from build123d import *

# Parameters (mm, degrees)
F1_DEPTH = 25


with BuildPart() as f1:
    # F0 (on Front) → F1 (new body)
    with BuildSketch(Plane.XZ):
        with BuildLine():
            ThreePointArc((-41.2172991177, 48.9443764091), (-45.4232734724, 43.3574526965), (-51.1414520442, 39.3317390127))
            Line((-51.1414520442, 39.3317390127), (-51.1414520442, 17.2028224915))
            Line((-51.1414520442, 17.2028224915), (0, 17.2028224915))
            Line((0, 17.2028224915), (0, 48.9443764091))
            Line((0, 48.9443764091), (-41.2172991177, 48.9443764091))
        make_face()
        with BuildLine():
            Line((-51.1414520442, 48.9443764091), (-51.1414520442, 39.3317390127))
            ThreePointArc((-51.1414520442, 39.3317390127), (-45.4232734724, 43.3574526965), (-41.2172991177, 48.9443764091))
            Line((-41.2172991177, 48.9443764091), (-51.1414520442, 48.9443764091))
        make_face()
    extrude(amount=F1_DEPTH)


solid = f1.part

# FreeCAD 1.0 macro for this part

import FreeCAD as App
import Part
import Sketcher
from FreeCAD import Vector
Q = App.Units.Quantity

doc = App.newDocument("Part")
body = doc.addObject("PartDesign::Body", "Body")

sketch1 = body.newObject("Sketcher::SketchObject", "Sketch")
sketch1.AttachmentSupport = (doc.getObject("XZ_Plane"), [""])
sketch1.MapMode = "FlatFace"
sketch1.addGeometry(Part.LineSegment(Vector(-51, 17, 0), Vector(0, 17, 0)), False)
sketch1.addGeometry(Part.LineSegment(Vector(0, 17, 0), Vector(0, 49, 0)), False)
sketch1.addGeometry(Part.LineSegment(Vector(0, 49, 0), Vector(-51, 49, 0)), False)
sketch1.addGeometry(Part.LineSegment(Vector(-51, 49, 0), Vector(-51, 17, 0)), False)
sketch1.addConstraint(Sketcher.Constraint("Coincident", 0, 2, 1, 1))
sketch1.addConstraint(Sketcher.Constraint("Coincident", 1, 2, 2, 1))
sketch1.addConstraint(Sketcher.Constraint("Coincident", 2, 2, 3, 1))
sketch1.addConstraint(Sketcher.Constraint("Coincident", 3, 2, 0, 1))
sketch1.addConstraint(Sketcher.Constraint("Horizontal", 0))
sketch1.addConstraint(Sketcher.Constraint("Vertical", 1))
sketch1.addConstraint(Sketcher.Constraint("Horizontal", 2))
sketch1.addConstraint(Sketcher.Constraint("Vertical", 3))
sketch1.addConstraint(Sketcher.Constraint("PointOnObject", 0, 2, -2))
sketch1.addConstraint(Sketcher.Constraint("DistanceX", 0, 1, 0, 2, Q("51.141452 mm")))
sketch1.addConstraint(Sketcher.Constraint("DistanceY", 1, 1, 1, 2, Q("31.741554 mm")))
sketch1.addConstraint(Sketcher.Constraint("DistanceY", -1, 1, 0, 2, Q("17.202822 mm")))
pad1 = body.newObject("PartDesign::Pad", "Pad")
pad1.Profile = sketch1
pad1.Length = 25

doc.recompute()
